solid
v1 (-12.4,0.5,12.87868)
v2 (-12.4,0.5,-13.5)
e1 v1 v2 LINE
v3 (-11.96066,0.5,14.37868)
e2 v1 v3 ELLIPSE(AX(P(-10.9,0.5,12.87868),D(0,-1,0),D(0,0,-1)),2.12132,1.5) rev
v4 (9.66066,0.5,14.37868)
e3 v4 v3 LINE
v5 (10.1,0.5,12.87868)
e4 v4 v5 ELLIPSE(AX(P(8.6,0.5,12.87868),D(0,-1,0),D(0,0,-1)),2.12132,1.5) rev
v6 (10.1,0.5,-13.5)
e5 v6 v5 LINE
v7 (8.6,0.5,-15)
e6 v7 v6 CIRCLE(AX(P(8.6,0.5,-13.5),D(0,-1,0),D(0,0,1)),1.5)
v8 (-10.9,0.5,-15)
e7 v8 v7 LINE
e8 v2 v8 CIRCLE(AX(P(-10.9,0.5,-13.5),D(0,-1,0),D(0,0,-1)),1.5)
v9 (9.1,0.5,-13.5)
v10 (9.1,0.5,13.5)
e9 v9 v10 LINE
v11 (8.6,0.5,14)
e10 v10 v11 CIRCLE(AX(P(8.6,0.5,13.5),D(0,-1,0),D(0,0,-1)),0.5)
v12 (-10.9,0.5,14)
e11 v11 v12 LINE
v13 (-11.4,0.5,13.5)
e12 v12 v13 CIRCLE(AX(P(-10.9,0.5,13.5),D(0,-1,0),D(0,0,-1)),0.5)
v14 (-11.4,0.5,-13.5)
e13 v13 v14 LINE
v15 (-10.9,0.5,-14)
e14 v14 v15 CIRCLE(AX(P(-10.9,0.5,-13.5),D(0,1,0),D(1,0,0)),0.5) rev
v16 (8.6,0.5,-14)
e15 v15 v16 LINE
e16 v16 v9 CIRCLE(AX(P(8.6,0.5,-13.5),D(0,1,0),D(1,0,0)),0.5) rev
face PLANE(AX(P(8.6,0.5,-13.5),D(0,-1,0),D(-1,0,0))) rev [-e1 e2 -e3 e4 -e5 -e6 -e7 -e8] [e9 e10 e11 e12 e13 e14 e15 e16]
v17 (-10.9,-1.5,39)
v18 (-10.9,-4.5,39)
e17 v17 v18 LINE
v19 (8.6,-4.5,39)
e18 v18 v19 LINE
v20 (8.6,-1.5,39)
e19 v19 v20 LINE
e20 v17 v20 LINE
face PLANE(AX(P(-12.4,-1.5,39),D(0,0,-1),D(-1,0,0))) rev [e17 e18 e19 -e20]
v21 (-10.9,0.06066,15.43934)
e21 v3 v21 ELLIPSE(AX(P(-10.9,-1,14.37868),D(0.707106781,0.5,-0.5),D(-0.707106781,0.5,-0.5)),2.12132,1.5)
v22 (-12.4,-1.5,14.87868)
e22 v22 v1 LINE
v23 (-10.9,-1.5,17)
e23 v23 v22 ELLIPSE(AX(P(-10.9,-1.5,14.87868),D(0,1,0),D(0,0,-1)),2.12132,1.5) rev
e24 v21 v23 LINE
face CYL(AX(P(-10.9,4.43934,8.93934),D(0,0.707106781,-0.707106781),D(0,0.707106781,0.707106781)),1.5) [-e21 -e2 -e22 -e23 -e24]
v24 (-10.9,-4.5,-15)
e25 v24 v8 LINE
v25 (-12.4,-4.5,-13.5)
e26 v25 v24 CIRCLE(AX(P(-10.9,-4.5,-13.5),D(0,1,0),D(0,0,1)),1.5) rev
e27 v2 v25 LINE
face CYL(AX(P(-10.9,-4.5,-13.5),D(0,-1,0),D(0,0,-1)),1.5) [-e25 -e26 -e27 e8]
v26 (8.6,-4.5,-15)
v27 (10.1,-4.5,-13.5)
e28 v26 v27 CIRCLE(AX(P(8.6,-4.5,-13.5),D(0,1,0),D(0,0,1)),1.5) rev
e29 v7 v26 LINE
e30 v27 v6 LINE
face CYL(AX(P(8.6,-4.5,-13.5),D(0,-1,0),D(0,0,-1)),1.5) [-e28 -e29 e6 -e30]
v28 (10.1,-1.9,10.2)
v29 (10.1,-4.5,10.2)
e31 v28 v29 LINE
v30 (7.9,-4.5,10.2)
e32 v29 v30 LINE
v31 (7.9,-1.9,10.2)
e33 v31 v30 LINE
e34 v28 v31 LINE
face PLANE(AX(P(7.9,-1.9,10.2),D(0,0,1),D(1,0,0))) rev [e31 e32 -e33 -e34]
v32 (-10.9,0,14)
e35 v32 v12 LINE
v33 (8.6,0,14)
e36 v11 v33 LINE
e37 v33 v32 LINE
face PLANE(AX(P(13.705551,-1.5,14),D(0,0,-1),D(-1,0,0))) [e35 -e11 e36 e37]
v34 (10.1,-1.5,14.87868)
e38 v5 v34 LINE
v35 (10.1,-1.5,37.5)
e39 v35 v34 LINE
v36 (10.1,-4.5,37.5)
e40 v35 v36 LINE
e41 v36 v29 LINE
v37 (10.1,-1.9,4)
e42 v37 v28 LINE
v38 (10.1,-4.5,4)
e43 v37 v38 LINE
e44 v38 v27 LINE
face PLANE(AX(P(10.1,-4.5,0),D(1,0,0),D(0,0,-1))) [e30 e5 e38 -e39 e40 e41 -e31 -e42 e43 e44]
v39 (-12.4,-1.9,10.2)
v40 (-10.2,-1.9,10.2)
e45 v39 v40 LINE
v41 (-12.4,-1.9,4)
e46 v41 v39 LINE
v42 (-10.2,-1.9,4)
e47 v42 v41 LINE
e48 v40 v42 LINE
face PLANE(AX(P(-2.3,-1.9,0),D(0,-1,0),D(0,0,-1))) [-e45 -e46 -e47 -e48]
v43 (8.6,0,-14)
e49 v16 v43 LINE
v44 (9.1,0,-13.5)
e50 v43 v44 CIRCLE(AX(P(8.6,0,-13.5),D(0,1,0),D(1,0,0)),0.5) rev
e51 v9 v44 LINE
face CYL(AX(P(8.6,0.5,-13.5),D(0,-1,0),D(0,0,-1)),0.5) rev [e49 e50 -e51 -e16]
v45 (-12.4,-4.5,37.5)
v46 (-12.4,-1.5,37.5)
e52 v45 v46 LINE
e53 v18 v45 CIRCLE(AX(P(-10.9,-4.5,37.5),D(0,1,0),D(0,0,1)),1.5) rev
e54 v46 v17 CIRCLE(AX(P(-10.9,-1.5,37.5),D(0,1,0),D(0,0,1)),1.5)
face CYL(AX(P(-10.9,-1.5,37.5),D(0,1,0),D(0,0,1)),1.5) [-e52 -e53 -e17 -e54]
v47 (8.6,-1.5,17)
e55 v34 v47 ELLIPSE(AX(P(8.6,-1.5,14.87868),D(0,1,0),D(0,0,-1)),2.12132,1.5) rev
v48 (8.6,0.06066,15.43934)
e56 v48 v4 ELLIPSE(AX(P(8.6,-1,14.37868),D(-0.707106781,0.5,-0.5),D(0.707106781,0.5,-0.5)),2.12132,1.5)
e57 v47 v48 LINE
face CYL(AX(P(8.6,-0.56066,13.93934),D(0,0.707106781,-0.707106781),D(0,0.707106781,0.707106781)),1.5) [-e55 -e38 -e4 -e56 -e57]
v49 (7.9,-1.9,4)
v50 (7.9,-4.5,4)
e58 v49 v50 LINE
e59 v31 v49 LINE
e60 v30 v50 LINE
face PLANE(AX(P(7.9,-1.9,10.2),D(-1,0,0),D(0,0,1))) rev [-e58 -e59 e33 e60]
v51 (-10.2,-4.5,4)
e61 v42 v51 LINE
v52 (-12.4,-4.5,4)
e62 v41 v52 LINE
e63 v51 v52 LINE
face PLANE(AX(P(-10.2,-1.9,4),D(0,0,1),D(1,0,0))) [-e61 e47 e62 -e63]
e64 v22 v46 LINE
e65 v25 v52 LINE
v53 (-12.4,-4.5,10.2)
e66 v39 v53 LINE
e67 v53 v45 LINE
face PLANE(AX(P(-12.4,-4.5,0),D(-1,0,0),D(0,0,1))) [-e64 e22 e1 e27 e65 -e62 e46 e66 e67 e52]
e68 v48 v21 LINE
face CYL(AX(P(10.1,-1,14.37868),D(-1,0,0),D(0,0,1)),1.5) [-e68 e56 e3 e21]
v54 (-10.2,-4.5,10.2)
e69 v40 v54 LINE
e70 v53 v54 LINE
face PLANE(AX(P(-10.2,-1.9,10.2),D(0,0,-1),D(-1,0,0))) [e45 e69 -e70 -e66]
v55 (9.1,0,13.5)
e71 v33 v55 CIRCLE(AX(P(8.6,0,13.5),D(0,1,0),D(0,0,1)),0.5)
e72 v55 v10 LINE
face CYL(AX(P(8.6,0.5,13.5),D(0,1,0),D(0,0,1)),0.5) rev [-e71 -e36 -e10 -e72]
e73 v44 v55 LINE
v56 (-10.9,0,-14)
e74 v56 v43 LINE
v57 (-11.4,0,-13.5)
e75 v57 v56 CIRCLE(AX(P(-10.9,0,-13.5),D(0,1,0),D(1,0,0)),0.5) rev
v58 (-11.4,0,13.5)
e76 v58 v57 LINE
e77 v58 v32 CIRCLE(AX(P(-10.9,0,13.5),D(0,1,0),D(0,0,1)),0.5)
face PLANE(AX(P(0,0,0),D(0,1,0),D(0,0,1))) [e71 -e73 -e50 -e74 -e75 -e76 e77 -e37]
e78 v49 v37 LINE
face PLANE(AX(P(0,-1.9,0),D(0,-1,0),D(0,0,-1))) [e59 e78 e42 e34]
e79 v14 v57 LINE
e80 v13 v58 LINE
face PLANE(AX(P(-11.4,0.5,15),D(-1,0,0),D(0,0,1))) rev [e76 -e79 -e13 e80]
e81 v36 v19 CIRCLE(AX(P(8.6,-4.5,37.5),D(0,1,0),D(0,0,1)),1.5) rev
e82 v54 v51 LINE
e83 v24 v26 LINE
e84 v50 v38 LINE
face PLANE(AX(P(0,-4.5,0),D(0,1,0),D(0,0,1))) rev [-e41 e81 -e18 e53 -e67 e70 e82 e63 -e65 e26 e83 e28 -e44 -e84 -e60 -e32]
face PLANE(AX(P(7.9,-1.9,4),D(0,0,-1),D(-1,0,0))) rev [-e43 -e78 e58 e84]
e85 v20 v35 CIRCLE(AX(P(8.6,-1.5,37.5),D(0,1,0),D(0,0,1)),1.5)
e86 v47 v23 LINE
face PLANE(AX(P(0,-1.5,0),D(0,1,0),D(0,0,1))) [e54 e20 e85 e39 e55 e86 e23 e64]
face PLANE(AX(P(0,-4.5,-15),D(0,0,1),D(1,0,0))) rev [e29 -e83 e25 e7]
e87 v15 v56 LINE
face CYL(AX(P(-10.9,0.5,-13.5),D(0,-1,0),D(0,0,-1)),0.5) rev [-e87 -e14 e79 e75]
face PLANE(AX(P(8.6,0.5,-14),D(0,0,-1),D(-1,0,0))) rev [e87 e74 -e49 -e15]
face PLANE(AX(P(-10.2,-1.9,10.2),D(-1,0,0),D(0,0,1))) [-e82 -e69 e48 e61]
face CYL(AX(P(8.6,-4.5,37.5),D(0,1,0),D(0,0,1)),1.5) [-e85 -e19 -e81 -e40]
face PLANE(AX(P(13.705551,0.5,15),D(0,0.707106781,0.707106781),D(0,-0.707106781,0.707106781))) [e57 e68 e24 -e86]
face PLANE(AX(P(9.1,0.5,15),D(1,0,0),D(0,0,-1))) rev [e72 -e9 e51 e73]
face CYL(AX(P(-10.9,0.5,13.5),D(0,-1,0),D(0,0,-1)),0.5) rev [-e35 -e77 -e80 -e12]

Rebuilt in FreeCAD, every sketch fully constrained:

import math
import FreeCAD as App
import Part
import Sketcher

V = App.Vector
Q = App.Units.Quantity


def edges_at(feature, points):
    """Names of the edges that pass closest to the given points."""
    edges = feature.Shape.Edges
    near = lambda p: min(range(len(edges)), key=lambda i: edges[i].distToShape(Part.Vertex(*p))[0])
    return sorted({f"Edge{near(p) + 1}" for p in points})

doc = App.newDocument("Part")
params = doc.addObject("Spreadsheet::Sheet", "Params")
for row, (alias, value) in enumerate([
    ("sketch1_height", "30 mm"),
    ("sketch1_width", "22.5 mm"),
    ("pad1_length", "4.5 mm"),
    ("sketch2_height", "24 mm"),
    ("sketch2_width", "22.5 mm"),
    ("pad2_length", "3 mm"),
    ("fillet_radius", "1.5 mm"),
    ("sketch3_width", "2.2 mm"),
    ("sketch3_height", "6.2 mm"),
    ("pocket1_length", "2.6 mm"),
    ("sketch4_radius", "0.5 mm"),
    ("sketch4_radius2", "1.5 mm"),
    ("sketch4_width", "19.5 mm"),
    ("sketch4_height", "28.5 mm"),
    ("pad3_length", "0.5 mm"),
    ("sketch5_width", "2 mm"),
    ("sketch5_height", "1 mm"),
    ("sketch5_height2", "3 mm"),
    ("pad4_length", "22.5 mm"),
    ("fillet2_radius", "1.5 mm"),
    ("fillet3_radius", "0.5 mm"),
    ("sketch6_radius", "1.5 mm"),
    ("sketch6_height", "1.5 mm"),
], start=1):
    params.set(f"A{row}", alias)
    params.set(f"B{row}", "=" + value)
    params.setAlias(f"B{row}", alias)

body = doc.addObject("PartDesign::Body", "Body")

# Sketch on XZ plane
sketch1 = doc.addObject("Sketcher::SketchObject", "Sketch")
body.addObject(sketch1)
sketch1.AttachmentSupport = (doc.XZ_Plane, [""])
sketch1.MapMode = "FlatFace"
sketch1.addGeometry([
    Part.LineSegment(V(-12, -15, 0), V(-12, 15, 0)),
    Part.LineSegment(V(-12, 15, 0), V(10, 15, 0)),
    Part.LineSegment(V(10, 15, 0), V(10, -15, 0)),
    Part.LineSegment(V(10, -15, 0), V(-12, -15, 0)),
], False)
sketch1.addConstraint([
    Sketcher.Constraint("Coincident", 0, 2, 1, 1),
    Sketcher.Constraint("Coincident", 1, 2, 2, 1),
    Sketcher.Constraint("Coincident", 2, 2, 3, 1),
    Sketcher.Constraint("Coincident", 3, 2, 0, 1),
    Sketcher.Constraint("Vertical", 0),
    Sketcher.Constraint("Horizontal", 1),
    Sketcher.Constraint("Vertical", 2),
    Sketcher.Constraint("Horizontal", 3),
    Sketcher.Constraint("DistanceY", 0, 1, 0, 2, 30.0),
    Sketcher.Constraint("DistanceX", 1, 1, 1, 2, 22.5),
    Sketcher.Constraint("DistanceY", -1, 1, 0, 2, 15.0),
    Sketcher.Constraint("DistanceX", 0, 2, -1, 1, 12.4),
])
sketch1.setExpression("Constraints[8]", "Params.sketch1_height")
sketch1.setExpression("Constraints[9]", "Params.sketch1_width")
pad1 = doc.addObject("PartDesign::Pad", "Pad")
body.addObject(pad1)
pad1.Profile = sketch1
pad1.setExpression("Length", "Params.pad1_length")

# Sketch on XZ plane
sketch2 = doc.addObject("Sketcher::SketchObject", "Sketch001")
body.addObject(sketch2)
sketch2.AttachmentSupport = (doc.XZ_Plane, [""])
sketch2.MapMode = "FlatFace"
sketch2.AttachmentOffset = App.Placement(V(0, 0, 4.5), App.Rotation())
sketch2.addGeometry([
    Part.LineSegment(V(-12, 15, 0), V(-12, 39, 0)),
    Part.LineSegment(V(-12, 39, 0), V(10, 39, 0)),
    Part.LineSegment(V(10, 39, 0), V(10, 15, 0)),
    Part.LineSegment(V(10, 15, 0), V(-12, 15, 0)),
], False)
sketch2.addConstraint([
    Sketcher.Constraint("Coincident", 0, 2, 1, 1),
    Sketcher.Constraint("Coincident", 1, 2, 2, 1),
    Sketcher.Constraint("Coincident", 2, 2, 3, 1),
    Sketcher.Constraint("Coincident", 3, 2, 0, 1),
    Sketcher.Constraint("Vertical", 0),
    Sketcher.Constraint("Horizontal", 1),
    Sketcher.Constraint("Vertical", 2),
    Sketcher.Constraint("Horizontal", 3),
    Sketcher.Constraint("DistanceY", 0, 1, 0, 2, 24.0),
    Sketcher.Constraint("DistanceX", 1, 1, 1, 2, 22.5),
    Sketcher.Constraint("DistanceY", -1, 1, 0, 2, 39.0),
    Sketcher.Constraint("DistanceX", 0, 2, -1, 1, 12.4),
])
sketch2.setExpression("Constraints[8]", "Params.sketch2_height")
sketch2.setExpression("Constraints[9]", "Params.sketch2_width")
pad2 = doc.addObject("PartDesign::Pad", "Pad001")
body.addObject(pad2)
pad2.Profile = sketch2
pad2.setExpression("Length", "Params.pad2_length")
pad2.Reversed = True
doc.recompute()

fillet = doc.addObject("PartDesign::Fillet", "Fillet")
body.addObject(fillet)
fillet.Base = (pad2, edges_at(pad2, [
    (-12.4, -3, 39),
    (10.1, -3, 39),
    (10.1, -2.25, -15),
    (-12.4, -2.25, -15),
]))
fillet.setExpression("Radius", "Params.fillet_radius")

# Sketch on XZ plane
sketch3 = doc.addObject("Sketcher::SketchObject", "Sketch002")
body.addObject(sketch3)
sketch3.AttachmentSupport = (doc.XZ_Plane, [""])
sketch3.MapMode = "FlatFace"
sketch3.AttachmentOffset = App.Placement(V(0, 0, 4.5), App.Rotation())
sketch3.addGeometry([
    Part.LineSegment(V(7.9, 10.2, 0), V(7.9, 4, 0)),
    Part.LineSegment(V(7.9, 4, 0), V(10.1, 4, 0)),
    Part.LineSegment(V(10.1, 4, 0), V(10.1, 10.2, 0)),
    Part.LineSegment(V(10.1, 10.2, 0), V(7.9, 10.2, 0)),
], False)
sketch3.addConstraint([
    Sketcher.Constraint("Coincident", 0, 2, 1, 1),
    Sketcher.Constraint("Coincident", 1, 2, 2, 1),
    Sketcher.Constraint("Coincident", 2, 2, 3, 1),
    Sketcher.Constraint("Coincident", 3, 2, 0, 1),
    Sketcher.Constraint("Vertical", 0),
    Sketcher.Constraint("Horizontal", 1),
    Sketcher.Constraint("Vertical", 2),
    Sketcher.Constraint("Horizontal", 3),
    Sketcher.Constraint("DistanceX", 1, 1, 1, 2, 2.2),
    Sketcher.Constraint("DistanceY", 0, 2, 0, 1, 6.2),
    Sketcher.Constraint("DistanceY", -1, 1, 0, 2, 4.0),
    Sketcher.Constraint("DistanceX", -1, 1, 0, 2, 7.9),
])
sketch3.setExpression("Constraints[8]", "Params.sketch3_width")
sketch3.setExpression("Constraints[9]", "Params.sketch3_height")
pocket1 = doc.addObject("PartDesign::Pocket", "Pocket")
body.addObject(pocket1)
pocket1.Profile = sketch3
pocket1.setExpression("Length", "Params.pocket1_length")
doc.recompute()

datumplane = doc.addObject("PartDesign::Plane", "DatumPlane")
body.addObject(datumplane)
datumplane.AttachmentSupport = (doc.YZ_Plane, [""])
datumplane.MapMode = "FlatFace"
datumplane.AttachmentOffset = App.Placement(V(0, 0, -1.15), App.Rotation())
mirrored = doc.addObject("PartDesign::Mirrored", "Mirrored")
body.addObject(mirrored)
mirrored.Originals = [pocket1]
mirrored.MirrorPlane = (datumplane, [""])
body.Tip = mirrored

# Sketch on XZ plane
sketch4 = doc.addObject("Sketcher::SketchObject", "Sketch003")
body.addObject(sketch4)
sketch4.AttachmentSupport = (doc.XZ_Plane, [""])
sketch4.MapMode = "FlatFace"
sketch4.addGeometry([
    Part.LineSegment(V(-12.4, -13.5, 0), V(-12.4, 15, 0)),  # 0
    Part.LineSegment(V(-12.4, 15, 0), V(-11.4, 15, 0)),  # 1
    Part.LineSegment(V(-11.4, 15, 0), V(-11.4, -13.5, 0)),  # 2
    Part.ArcOfCircle(Part.Circle(V(-10.9, -13.5, 0), V(0, 0, 1), 0.5), math.radians(180), math.radians(270)),  # 3
    Part.LineSegment(V(-10.9, -14, 0), V(8.6, -14, 0)),  # 4
    Part.ArcOfCircle(Part.Circle(V(8.6, -13.5, 0), V(0, 0, 1), 0.5), math.radians(-90), math.radians(0)),  # 5
    Part.LineSegment(V(9.1, -13.5, 0), V(9.1, 15, 0)),  # 6
    Part.LineSegment(V(9.1, 15, 0), V(10.1, 15, 0)),  # 7
    Part.LineSegment(V(10.1, 15, 0), V(10.1, -13.5, 0)),  # 8
    Part.ArcOfCircle(Part.Circle(V(8.6, -13.5, 0), V(0, 0, 1), 1.5), math.radians(-90), math.radians(0)),  # 9
    Part.LineSegment(V(8.6, -15, 0), V(-10.9, -15, 0)),  # 10
    Part.ArcOfCircle(Part.Circle(V(-10.9, -13.5, 0), V(0, 0, 1), 1.5), math.radians(180), math.radians(270)),  # 11
], False)
sketch4.addConstraint([
    Sketcher.Constraint("Coincident", 0, 2, 1, 1),
    Sketcher.Constraint("Coincident", 1, 2, 2, 1),
    Sketcher.Constraint("Tangent", 2, 2, 3, 1),
    Sketcher.Constraint("Tangent", 3, 2, 4, 1),
    Sketcher.Constraint("Tangent", 4, 2, 5, 1),
    Sketcher.Constraint("Tangent", 5, 2, 6, 1),
    Sketcher.Constraint("Coincident", 6, 2, 7, 1),
    Sketcher.Constraint("Coincident", 7, 2, 8, 1),
    Sketcher.Constraint("Tangent", 8, 2, 9, 2),
    Sketcher.Constraint("Tangent", 9, 1, 10, 1),
    Sketcher.Constraint("Tangent", 10, 2, 11, 2),
    Sketcher.Constraint("Tangent", 11, 1, 0, 1),
    Sketcher.Constraint("Vertical", 0),
    Sketcher.Constraint("Horizontal", 1),
    Sketcher.Constraint("Vertical", 2),
    Sketcher.Constraint("Horizontal", 4),
    Sketcher.Constraint("Vertical", 6),
    Sketcher.Constraint("Horizontal", 7),
    Sketcher.Constraint("Vertical", 8),
    Sketcher.Constraint("Horizontal", 10),
    Sketcher.Constraint("Coincident", 9, 3, 5, 3),
    Sketcher.Constraint("Coincident", 11, 3, 3, 3),
    Sketcher.Constraint("Equal", 3, 5),
    Sketcher.Constraint("Horizontal", 1, 2, 6, 2),
    Sketcher.Constraint("Radius", 3, 0.5),
    Sketcher.Constraint("Radius", 9, 1.5),
    Sketcher.Constraint("DistanceX", 4, 1, 4, 2, 19.5),
    Sketcher.Constraint("DistanceY", 0, 1, 0, 2, 28.5),
    Sketcher.Constraint("DistanceY", -1, 1, 0, 2, 15.0),
    Sketcher.Constraint("DistanceX", 3, 3, -1, 1, 10.9),
])
sketch4.setExpression("Constraints[24]", "Params.sketch4_radius")
sketch4.setExpression("Constraints[25]", "Params.sketch4_radius2")
sketch4.setExpression("Constraints[26]", "Params.sketch4_width")
sketch4.setExpression("Constraints[27]", "Params.sketch4_height")
pad3 = doc.addObject("PartDesign::Pad", "Pad002")
body.addObject(pad3)
pad3.Profile = sketch4
pad3.setExpression("Length", "Params.pad3_length")
pad3.Reversed = True

# Sketch on YZ plane
sketch5 = doc.addObject("Sketcher::SketchObject", "Sketch004")
body.addObject(sketch5)
sketch5.AttachmentSupport = (doc.YZ_Plane, [""])
sketch5.MapMode = "FlatFace"
sketch5.AttachmentOffset = App.Placement(V(0, 0, -12.4), App.Rotation())
sketch5.addGeometry([
    Part.LineSegment(V(-1.5, 17, 0), V(0.5, 15, 0)),
    Part.LineSegment(V(0.5, 15, 0), V(0.5, 14, 0)),
    Part.LineSegment(V(0.5, 14, 0), V(-1.5, 14, 0)),
    Part.LineSegment(V(-1.5, 14, 0), V(-1.5, 17, 0)),
], False)
sketch5.addConstraint([
    Sketcher.Constraint("Coincident", 0, 2, 1, 1),
    Sketcher.Constraint("Coincident", 1, 2, 2, 1),
    Sketcher.Constraint("Coincident", 2, 2, 3, 1),
    Sketcher.Constraint("Coincident", 3, 2, 0, 1),
    Sketcher.Constraint("Vertical", 1),
    Sketcher.Constraint("Horizontal", 2),
    Sketcher.Constraint("Vertical", 3),
    Sketcher.Constraint("DistanceX", 2, 2, 2, 1, 2.0),
    Sketcher.Constraint("DistanceY", 1, 2, 1, 1, 1.0),
    Sketcher.Constraint("DistanceY", 3, 1, 3, 2, 3.0),
    Sketcher.Constraint("DistanceY", -1, 1, 0, 2, 15.0),
    Sketcher.Constraint("DistanceX", -1, 1, 0, 2, 0.5),
])
sketch5.setExpression("Constraints[7]", "Params.sketch5_width")
sketch5.setExpression("Constraints[8]", "Params.sketch5_height")
sketch5.setExpression("Constraints[9]", "Params.sketch5_height2")
pad4 = doc.addObject("PartDesign::Pad", "Pad003")
body.addObject(pad4)
pad4.Profile = sketch5
pad4.setExpression("Length", "Params.pad4_length")
doc.recompute()

fillet2 = doc.addObject("PartDesign::Fillet", "Fillet001")
body.addObject(fillet2)
fillet2.Base = (pad4, edges_at(pad4, [(-12.4, -0.5, 16), (10.1, -0.5, 16)]))
fillet2.setExpression("Radius", "Params.fillet2_radius")
doc.recompute()

fillet3 = doc.addObject("PartDesign::Fillet", "Fillet002")
body.addObject(fillet3)
fillet3.Base = (fillet2, edges_at(fillet2, [(9.1, 0.25, 14), (-11.4, 0.25, 14)]))
fillet3.setExpression("Radius", "Params.fillet3_radius")

# Sketch on YZ plane
sketch6 = doc.addObject("Sketcher::SketchObject", "Sketch005")
body.addObject(sketch6)
sketch6.AttachmentSupport = (doc.YZ_Plane, [""])
sketch6.MapMode = "FlatFace"
sketch6.AttachmentOffset = App.Placement(V(0, 0, -12.4), App.Rotation())
sketch6.addGeometry([
    Part.LineSegment(V(0.5, 12.9, 0), V(0.5, 14.4, 0)),  # 0
    Part.ArcOfCircle(Part.Circle(V(-1, 14.4, 0), V(0, 0, 1), 1.5), math.radians(0), math.radians(45)),  # 1
    Part.LineSegment(V(0.1, 15.4, 0), V(-1.5, 17, 0)),  # 2
    Part.LineSegment(V(-1.5, 17, 0), V(-1.5, 17.9, 0)),  # 3
    Part.LineSegment(V(-1.5, 17.9, 0), V(1.2, 15.2, 0)),  # 4
    Part.LineSegment(V(1.2, 15.2, 0), V(1.1, 12.9, 0)),  # 5
    Part.LineSegment(V(1.1, 12.9, 0), V(0.5, 12.9, 0)),  # 6
], False)
sketch6.addConstraint([
    Sketcher.Constraint("Tangent", 0, 2, 1, 1),
    Sketcher.Constraint("Tangent", 1, 2, 2, 1),
    Sketcher.Constraint("Coincident", 2, 2, 3, 1),
    Sketcher.Constraint("Coincident", 3, 2, 4, 1),
    Sketcher.Constraint("Coincident", 4, 2, 5, 1),
    Sketcher.Constraint("Coincident", 5, 2, 6, 1),
    Sketcher.Constraint("Coincident", 6, 2, 0, 1),
    Sketcher.Constraint("Vertical", 0),
    Sketcher.Constraint("Vertical", 3),
    Sketcher.Constraint("Horizontal", 6),
    Sketcher.Constraint("Parallel", 2, 4),
    Sketcher.Constraint("Radius", 1, 1.5),
    Sketcher.Constraint("Angle", 2, Q("135 deg")),
    Sketcher.Constraint("DistanceY", 0, 1, 0, 2, 1.5),
    Sketcher.Constraint("DistanceX", 1, 3, -1, 1, 1.0),
    Sketcher.Constraint("DistanceY", -1, 1, 2, 2, 17.0),
    Sketcher.Constraint("DistanceX", 2, 2, 0, 2, 2.0),
    Sketcher.Constraint("DistanceY", 0, 2, 4, 2, 0.8025),
    Sketcher.Constraint("Distance", 4, 3.877908),
    Sketcher.Constraint("Distance", 5, 2.305609),
])
sketch6.setExpression("Constraints[11]", "Params.sketch6_radius")
sketch6.setExpression("Constraints[13]", "Params.sketch6_height")
pocket2 = doc.addObject("PartDesign::Pocket", "Pocket001")
body.addObject(pocket2)
pocket2.Profile = sketch6
pocket2.Type = "ThroughAll"
pocket2.Reversed = True

doc.recompute()
